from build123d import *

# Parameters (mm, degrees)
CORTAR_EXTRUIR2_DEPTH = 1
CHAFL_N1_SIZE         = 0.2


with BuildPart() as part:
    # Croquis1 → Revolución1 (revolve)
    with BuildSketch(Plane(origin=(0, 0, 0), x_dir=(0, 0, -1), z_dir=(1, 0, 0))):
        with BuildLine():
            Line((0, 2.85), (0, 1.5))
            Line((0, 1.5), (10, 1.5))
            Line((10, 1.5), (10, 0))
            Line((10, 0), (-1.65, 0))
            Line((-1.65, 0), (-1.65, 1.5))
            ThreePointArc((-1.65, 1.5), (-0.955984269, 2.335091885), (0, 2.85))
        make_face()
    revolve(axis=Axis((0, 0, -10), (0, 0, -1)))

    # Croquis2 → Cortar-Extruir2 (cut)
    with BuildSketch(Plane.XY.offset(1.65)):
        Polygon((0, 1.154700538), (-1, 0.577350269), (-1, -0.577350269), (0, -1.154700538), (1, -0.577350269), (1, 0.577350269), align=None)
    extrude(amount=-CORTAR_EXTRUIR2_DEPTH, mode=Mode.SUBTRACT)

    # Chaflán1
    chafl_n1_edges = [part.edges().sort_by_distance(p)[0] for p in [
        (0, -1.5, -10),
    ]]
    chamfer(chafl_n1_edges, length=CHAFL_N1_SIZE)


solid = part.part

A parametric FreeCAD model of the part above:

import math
import FreeCAD as App
import Part
import Sketcher

V = App.Vector
Q = App.Units.Quantity


def edges_at(feature, points):
    """Names of the edges that pass closest to the given points."""
    edges = feature.Shape.Edges
    near = lambda p: min(range(len(edges)), key=lambda i: edges[i].distToShape(Part.Vertex(*p))[0])
    return sorted({f"Edge{near(p) + 1}" for p in points})


def add_polygon(sketch, points):
    """Adds a closed chain of lines whose ends are joined by coincident constraints."""
    first, n = sketch.GeometryCount, len(points)
    for a, b in zip(points, points[1:] + points[:1]):
        sketch.addGeometry(Part.LineSegment(App.Vector(*a, 0), App.Vector(*b, 0)), False)
    for i in range(n):
        sketch.addConstraint(Sketcher.Constraint("Coincident", first + i, 2, first + (i + 1) % n, 1))

doc = App.newDocument("Part")
body = doc.addObject("PartDesign::Body", "Body")

# Sketch on YZ plane
sketch1 = body.newObject("Sketcher::SketchObject", "Sketch")
sketch1.AttachmentSupport = (doc.getObject("YZ_Plane"), [""])
sketch1.MapMode = "FlatFace"
sketch1.addGeometry([
    Part.LineSegment(V(1.5, 0, 0), V(2.85, 0, 0)),  # 0
    Part.ArcOfCircle(Part.Circle(V(0.129314, -0.848743, 0), V(0, 0, 1), 2.85), math.radians(17.325797), math.radians(61.253017)),  # 1
    Part.LineSegment(V(1.5, 1.65, 0), V(0, 1.65, 0)),  # 2
    Part.LineSegment(V(0, 1.65, 0), V(0, -10, 0)),  # 3
    Part.LineSegment(V(0, -10, 0), V(1.5, -10, 0)),  # 4
    Part.LineSegment(V(1.5, -10, 0), V(1.5, 0, 0)),  # 5
], False)
sketch1.addConstraint([
    Sketcher.Constraint("Coincident", 0, 2, 1, 1),
    Sketcher.Constraint("Coincident", 1, 2, 2, 1),
    Sketcher.Constraint("Coincident", 2, 2, 3, 1),
    Sketcher.Constraint("Coincident", 3, 2, 4, 1),
    Sketcher.Constraint("Coincident", 4, 2, 5, 1),
    Sketcher.Constraint("Coincident", 5, 2, 0, 1),
    Sketcher.Constraint("Horizontal", 0),
    Sketcher.Constraint("Horizontal", 2),
    Sketcher.Constraint("Vertical", 3),
    Sketcher.Constraint("Horizontal", 4),
    Sketcher.Constraint("Vertical", 5),
    Sketcher.Constraint("PointOnObject", 0, 2, -1),
    Sketcher.Constraint("PointOnObject", 2, 2, -2),
    Sketcher.Constraint("Vertical", 1, 2, 4, 2),
    Sketcher.Constraint("DistanceY", 5, 1, 5, 2, Q("10 mm")),
    Sketcher.Constraint("Radius", 1, Q("2.85 mm")),
    Sketcher.Constraint("DistanceX", 2, 2, 2, 1, Q("1.5 mm")),
    Sketcher.Constraint("DistanceX", 0, 1, 0, 2, Q("1.35 mm")),
    Sketcher.Constraint("DistanceY", 3, 2, 3, 1, Q("11.65 mm")),
])
revolution = body.newObject("PartDesign::Revolution", "Revolution")
revolution.Profile = sketch1
revolution.ReferenceAxis = (sketch1, ["V_Axis"])
revolution.Angle = 360

# Sketch on XY plane
sketch2 = body.newObject("Sketcher::SketchObject", "Sketch001")
sketch2.AttachmentSupport = (doc.getObject("XY_Plane"), [""])
sketch2.MapMode = "FlatFace"
sketch2.AttachmentOffset = App.Placement(V(0, 0, 1.65), App.Rotation())
add_polygon(sketch2, [(0, 1.154701), (-1, 0.57735), (-1, -0.57735), (0, -1.154701), (1, -0.57735), (1, 0.57735)])  # lines 0-5
sketch2.addConstraint([
    Sketcher.Constraint("Vertical", 1),
    Sketcher.Constraint("Vertical", 4),
    Sketcher.Constraint("Symmetric", 0, 2, 3, 2, -1, 1),
    Sketcher.Constraint("Symmetric", 2, 2, 5, 2, -1, 1),
    Sketcher.Constraint("PointOnObject", 2, 2, -2),
    Sketcher.Constraint("Parallel", 2, 5),
    Sketcher.Constraint("Horizontal", 1, 2, 3, 2),
    Sketcher.Constraint("Angle", 0, Q("-150 deg")),
    Sketcher.Constraint("DistanceX", 0, 2, -1, 1, Q("1 mm")),
    Sketcher.Constraint("DistanceY", 1, 2, 1, 1, Q("1.154701 mm")),
])
pocket1 = body.newObject("PartDesign::Pocket", "Pocket")
pocket1.Profile = sketch2
pocket1.Length = 1
doc.recompute()

chamfer = body.newObject("PartDesign::Chamfer", "Chamfer")
chamfer.Base = (pocket1, edges_at(pocket1, [(0, -1.5, -10)]))
chamfer.Size = 0.2

doc.recompute()
